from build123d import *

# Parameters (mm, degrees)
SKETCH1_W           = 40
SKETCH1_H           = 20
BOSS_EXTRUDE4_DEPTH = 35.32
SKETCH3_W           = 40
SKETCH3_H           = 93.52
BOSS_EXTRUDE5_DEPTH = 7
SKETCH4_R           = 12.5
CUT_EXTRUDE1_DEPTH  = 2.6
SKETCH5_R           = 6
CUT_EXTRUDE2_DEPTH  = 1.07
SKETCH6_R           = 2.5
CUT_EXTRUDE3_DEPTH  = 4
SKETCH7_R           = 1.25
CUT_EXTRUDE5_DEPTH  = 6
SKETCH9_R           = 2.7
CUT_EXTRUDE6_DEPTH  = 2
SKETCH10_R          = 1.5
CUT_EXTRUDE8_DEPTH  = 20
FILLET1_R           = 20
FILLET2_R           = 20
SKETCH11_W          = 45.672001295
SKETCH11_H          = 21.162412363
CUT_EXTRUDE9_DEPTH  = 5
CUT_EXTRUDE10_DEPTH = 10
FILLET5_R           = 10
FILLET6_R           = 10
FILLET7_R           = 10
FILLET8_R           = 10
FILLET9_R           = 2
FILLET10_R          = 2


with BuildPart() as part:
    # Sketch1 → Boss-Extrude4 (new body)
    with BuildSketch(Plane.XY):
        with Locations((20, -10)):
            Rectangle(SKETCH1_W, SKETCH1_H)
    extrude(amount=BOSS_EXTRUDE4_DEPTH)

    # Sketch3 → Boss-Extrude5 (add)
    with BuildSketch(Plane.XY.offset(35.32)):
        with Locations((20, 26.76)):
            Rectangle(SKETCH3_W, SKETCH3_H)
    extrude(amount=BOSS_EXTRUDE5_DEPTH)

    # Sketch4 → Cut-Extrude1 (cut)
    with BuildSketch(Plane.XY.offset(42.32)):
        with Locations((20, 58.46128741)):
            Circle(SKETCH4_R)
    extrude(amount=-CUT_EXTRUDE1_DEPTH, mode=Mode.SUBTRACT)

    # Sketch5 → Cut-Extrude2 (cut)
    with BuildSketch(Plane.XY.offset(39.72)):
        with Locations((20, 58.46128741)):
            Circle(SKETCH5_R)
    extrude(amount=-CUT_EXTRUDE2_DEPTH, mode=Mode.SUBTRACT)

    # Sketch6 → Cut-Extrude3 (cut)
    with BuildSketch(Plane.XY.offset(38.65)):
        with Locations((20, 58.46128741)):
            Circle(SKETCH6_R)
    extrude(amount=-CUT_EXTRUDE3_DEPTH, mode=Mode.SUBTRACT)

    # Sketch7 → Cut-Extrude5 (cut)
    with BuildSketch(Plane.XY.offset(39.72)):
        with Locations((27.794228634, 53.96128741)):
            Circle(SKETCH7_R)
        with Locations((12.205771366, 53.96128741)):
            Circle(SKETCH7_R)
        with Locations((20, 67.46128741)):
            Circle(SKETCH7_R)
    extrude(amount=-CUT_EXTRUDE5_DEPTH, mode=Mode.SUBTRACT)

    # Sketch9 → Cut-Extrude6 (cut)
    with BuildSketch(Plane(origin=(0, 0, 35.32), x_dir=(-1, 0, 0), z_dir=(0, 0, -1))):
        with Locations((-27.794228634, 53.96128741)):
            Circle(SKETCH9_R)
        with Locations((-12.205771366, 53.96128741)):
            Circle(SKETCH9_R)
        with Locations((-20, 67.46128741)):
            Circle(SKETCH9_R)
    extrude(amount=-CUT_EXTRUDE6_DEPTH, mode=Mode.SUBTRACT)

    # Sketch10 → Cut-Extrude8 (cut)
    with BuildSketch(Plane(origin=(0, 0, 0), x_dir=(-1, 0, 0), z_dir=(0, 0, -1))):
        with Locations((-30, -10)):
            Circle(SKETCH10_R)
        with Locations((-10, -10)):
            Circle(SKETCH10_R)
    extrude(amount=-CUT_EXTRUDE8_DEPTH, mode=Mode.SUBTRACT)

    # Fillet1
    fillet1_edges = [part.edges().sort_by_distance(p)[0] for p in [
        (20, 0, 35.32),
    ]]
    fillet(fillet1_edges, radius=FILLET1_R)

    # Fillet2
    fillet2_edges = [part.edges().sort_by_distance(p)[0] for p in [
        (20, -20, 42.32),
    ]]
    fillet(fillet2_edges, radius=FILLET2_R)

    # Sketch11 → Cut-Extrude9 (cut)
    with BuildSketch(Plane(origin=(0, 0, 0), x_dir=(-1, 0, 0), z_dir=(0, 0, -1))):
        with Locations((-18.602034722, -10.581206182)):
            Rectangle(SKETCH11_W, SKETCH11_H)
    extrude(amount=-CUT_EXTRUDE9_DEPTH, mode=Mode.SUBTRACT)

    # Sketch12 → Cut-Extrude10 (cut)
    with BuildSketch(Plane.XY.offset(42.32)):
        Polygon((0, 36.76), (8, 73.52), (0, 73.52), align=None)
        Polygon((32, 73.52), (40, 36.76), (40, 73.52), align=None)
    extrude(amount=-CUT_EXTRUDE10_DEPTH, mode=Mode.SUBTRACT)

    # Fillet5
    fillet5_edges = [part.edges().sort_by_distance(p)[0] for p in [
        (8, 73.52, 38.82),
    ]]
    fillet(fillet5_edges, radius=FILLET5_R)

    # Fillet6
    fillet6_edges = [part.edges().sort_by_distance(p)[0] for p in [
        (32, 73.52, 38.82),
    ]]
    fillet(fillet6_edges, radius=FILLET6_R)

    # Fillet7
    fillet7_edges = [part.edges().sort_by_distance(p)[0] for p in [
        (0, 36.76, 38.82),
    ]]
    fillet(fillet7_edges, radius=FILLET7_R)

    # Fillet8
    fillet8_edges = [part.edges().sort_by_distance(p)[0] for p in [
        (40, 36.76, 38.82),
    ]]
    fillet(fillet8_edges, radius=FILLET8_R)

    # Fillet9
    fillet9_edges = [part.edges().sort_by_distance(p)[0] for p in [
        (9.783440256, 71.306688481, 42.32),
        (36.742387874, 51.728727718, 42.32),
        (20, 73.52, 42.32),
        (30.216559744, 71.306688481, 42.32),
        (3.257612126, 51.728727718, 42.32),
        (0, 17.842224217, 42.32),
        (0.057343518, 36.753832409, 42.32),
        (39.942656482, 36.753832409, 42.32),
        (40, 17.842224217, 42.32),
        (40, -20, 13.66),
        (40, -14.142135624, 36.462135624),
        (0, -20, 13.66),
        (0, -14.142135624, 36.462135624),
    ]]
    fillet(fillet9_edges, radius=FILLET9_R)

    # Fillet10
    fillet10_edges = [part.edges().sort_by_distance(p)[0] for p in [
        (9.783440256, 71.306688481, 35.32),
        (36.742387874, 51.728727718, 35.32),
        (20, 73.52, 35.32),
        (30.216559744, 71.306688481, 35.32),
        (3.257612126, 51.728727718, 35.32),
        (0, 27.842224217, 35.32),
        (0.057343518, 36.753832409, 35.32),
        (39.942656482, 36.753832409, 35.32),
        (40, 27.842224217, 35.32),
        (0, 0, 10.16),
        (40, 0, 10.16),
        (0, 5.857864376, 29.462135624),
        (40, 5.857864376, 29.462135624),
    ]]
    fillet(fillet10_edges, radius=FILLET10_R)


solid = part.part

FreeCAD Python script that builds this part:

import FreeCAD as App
import Part
import Sketcher
from FreeCAD import Vector
Q = App.Units.Quantity


def edges_at(feature, points):
    """Names of the edges that pass closest to the given points."""
    edges = feature.Shape.Edges
    near = lambda p: min(range(len(edges)), key=lambda i: edges[i].distToShape(Part.Vertex(*p))[0])
    return sorted({f"Edge{near(p) + 1}" for p in points})

doc = App.newDocument("Part")
params = doc.addObject("Spreadsheet::Sheet", "Params")
for row, (alias, value) in enumerate([
    ("sketch1_width", "40 mm"),
    ("sketch1_height", "20 mm"),
    ("pad1_length", "35.32 mm"),
    ("sketch2_width", "40 mm"),
    ("sketch2_height", "93.52 mm"),
    ("pad2_length", "7 mm"),
    ("sketch3_diameter", "25 mm"),
    ("pocket1_length", "2.6 mm"),
    ("sketch4_diameter", "12 mm"),
    ("pocket2_length", "1.07 mm"),
    ("sketch5_diameter", "5 mm"),
    ("pocket3_length", "4 mm"),
    ("sketch6_diameter", "2.5 mm"),
    ("pocket4_length", "6 mm"),
    ("sketch7_diameter", "5.4 mm"),
    ("pocket5_length", "2 mm"),
    ("sketch8_diameter", "3 mm"),
    ("pocket6_length", "20 mm"),
    ("fillet_radius", "20 mm"),
    ("fillet2_radius", "20 mm"),
    ("pocket7_length", "5 mm"),
    ("sketch10_width", "8 mm"),
    ("sketch10_height", "36.76 mm"),
    ("pocket8_length", "10 mm"),
    ("fillet3_radius", "10 mm"),
    ("fillet4_radius", "10 mm"),
    ("fillet5_radius", "10 mm"),
    ("fillet6_radius", "10 mm"),
    ("fillet7_radius", "2 mm"),
    ("fillet8_radius", "2 mm"),
], start=1):
    params.set(f"A{row}", alias)
    params.set(f"B{row}", "=" + value)
    params.setAlias(f"B{row}", alias)

body = doc.addObject("PartDesign::Body", "Body")

# Sketch on XY plane
sketch1 = body.newObject("Sketcher::SketchObject", "Sketch")
sketch1.AttachmentSupport = (doc.getObject("XY_Plane"), [""])
sketch1.MapMode = "FlatFace"
sketch1.addGeometry([
    Part.LineSegment(Vector(0, 0, 0), Vector(0, -20, 0)),
    Part.LineSegment(Vector(0, -20, 0), Vector(40, -20, 0)),
    Part.LineSegment(Vector(40, -20, 0), Vector(40, 0, 0)),
    Part.LineSegment(Vector(40, 0, 0), Vector(0, 0, 0)),
], False)
sketch1.addConstraint([
    Sketcher.Constraint("Coincident", 0, 2, 1, 1),
    Sketcher.Constraint("Coincident", 1, 2, 2, 1),
    Sketcher.Constraint("Coincident", 2, 2, 3, 1),
    Sketcher.Constraint("Coincident", 3, 2, 0, 1),
    Sketcher.Constraint("Vertical", 0),
    Sketcher.Constraint("Horizontal", 1),
    Sketcher.Constraint("Vertical", 2),
    Sketcher.Constraint("Horizontal", 3),
    Sketcher.Constraint("Coincident", 3, 2, -1, 1),
    Sketcher.Constraint("DistanceX", 1, 1, 1, 2, Q("40 mm")),
    Sketcher.Constraint("DistanceY", 0, 2, 0, 1, Q("20 mm")),
])
sketch1.setExpression("Constraints[9]", "Params.sketch1_width")
sketch1.setExpression("Constraints[10]", "Params.sketch1_height")
pad1 = body.newObject("PartDesign::Pad", "Pad")
pad1.Profile = sketch1
pad1.setExpression("Length", "Params.pad1_length")

# Sketch on XY plane
sketch2 = body.newObject("Sketcher::SketchObject", "Sketch001")
sketch2.AttachmentSupport = (doc.getObject("XY_Plane"), [""])
sketch2.MapMode = "FlatFace"
sketch2.AttachmentOffset = App.Placement(Vector(0, 0, 35.32), App.Rotation())
sketch2.addGeometry([
    Part.LineSegment(Vector(0, 73.52, 0), Vector(0, -20, 0)),
    Part.LineSegment(Vector(0, -20, 0), Vector(40, -20, 0)),
    Part.LineSegment(Vector(40, -20, 0), Vector(40, 73.52, 0)),
    Part.LineSegment(Vector(40, 73.52, 0), Vector(0, 73.52, 0)),
], False)
sketch2.addConstraint([
    Sketcher.Constraint("Coincident", 0, 2, 1, 1),
    Sketcher.Constraint("Coincident", 1, 2, 2, 1),
    Sketcher.Constraint("Coincident", 2, 2, 3, 1),
    Sketcher.Constraint("Coincident", 3, 2, 0, 1),
    Sketcher.Constraint("Vertical", 0),
    Sketcher.Constraint("Horizontal", 1),
    Sketcher.Constraint("Vertical", 2),
    Sketcher.Constraint("Horizontal", 3),
    Sketcher.Constraint("PointOnObject", 0, 2, -2),
    Sketcher.Constraint("DistanceX", 1, 1, 1, 2, Q("40 mm")),
    Sketcher.Constraint("DistanceY", 0, 2, -1, 1, Q("20 mm")),
    Sketcher.Constraint("DistanceY", 0, 2, 0, 1, Q("93.52 mm")),
])
sketch2.setExpression("Constraints[9]", "Params.sketch2_width")
sketch2.setExpression("Constraints[11]", "Params.sketch2_height")
pad2 = body.newObject("PartDesign::Pad", "Pad001")
pad2.Profile = sketch2
pad2.setExpression("Length", "Params.pad2_length")

# Sketch on XY plane
sketch3 = body.newObject("Sketcher::SketchObject", "Sketch002")
sketch3.AttachmentSupport = (doc.getObject("XY_Plane"), [""])
sketch3.MapMode = "FlatFace"
sketch3.AttachmentOffset = App.Placement(Vector(0, 0, 42.32), App.Rotation())
sketch3.addGeometry(Part.Circle(Vector(20, 58.461287, 0), Vector(0, 0, 1), 12.5), False)
sketch3.addConstraint([
    Sketcher.Constraint("Diameter", 0, Q("25 mm")),
    Sketcher.Constraint("DistanceX", -1, 1, 0, 3, Q("20 mm")),
    Sketcher.Constraint("DistanceY", -1, 1, 0, 3, Q("58.461287 mm")),
])
sketch3.setExpression("Constraints[0]", "Params.sketch3_diameter")
pocket1 = body.newObject("PartDesign::Pocket", "Pocket")
pocket1.Profile = sketch3
pocket1.setExpression("Length", "Params.pocket1_length")

# Sketch on XY plane
sketch4 = body.newObject("Sketcher::SketchObject", "Sketch003")
sketch4.AttachmentSupport = (doc.getObject("XY_Plane"), [""])
sketch4.MapMode = "FlatFace"
sketch4.AttachmentOffset = App.Placement(Vector(0, 0, 39.72), App.Rotation())
sketch4.addGeometry(Part.Circle(Vector(20, 58.461287, 0), Vector(0, 0, 1), 6), False)
sketch4.addConstraint([
    Sketcher.Constraint("Diameter", 0, Q("12 mm")),
    Sketcher.Constraint("DistanceX", -1, 1, 0, 3, Q("20 mm")),
    Sketcher.Constraint("DistanceY", -1, 1, 0, 3, Q("58.461287 mm")),
])
sketch4.setExpression("Constraints[0]", "Params.sketch4_diameter")
pocket2 = body.newObject("PartDesign::Pocket", "Pocket001")
pocket2.Profile = sketch4
pocket2.setExpression("Length", "Params.pocket2_length")

# Sketch on XY plane
sketch5 = body.newObject("Sketcher::SketchObject", "Sketch004")
sketch5.AttachmentSupport = (doc.getObject("XY_Plane"), [""])
sketch5.MapMode = "FlatFace"
sketch5.AttachmentOffset = App.Placement(Vector(0, 0, 38.65), App.Rotation())
sketch5.addGeometry(Part.Circle(Vector(20, 58.461287, 0), Vector(0, 0, 1), 2.5), False)
sketch5.addConstraint([
    Sketcher.Constraint("Diameter", 0, Q("5 mm")),
    Sketcher.Constraint("DistanceX", -1, 1, 0, 3, Q("20 mm")),
    Sketcher.Constraint("DistanceY", -1, 1, 0, 3, Q("58.461287 mm")),
])
sketch5.setExpression("Constraints[0]", "Params.sketch5_diameter")
pocket3 = body.newObject("PartDesign::Pocket", "Pocket002")
pocket3.Profile = sketch5
pocket3.setExpression("Length", "Params.pocket3_length")

# Sketch on XY plane
sketch6 = body.newObject("Sketcher::SketchObject", "Sketch005")
sketch6.AttachmentSupport = (doc.getObject("XY_Plane"), [""])
sketch6.MapMode = "FlatFace"
sketch6.AttachmentOffset = App.Placement(Vector(0, 0, 39.72), App.Rotation())
sketch6.addGeometry([
    Part.Circle(Vector(27.794229, 53.961287, 0), Vector(0, 0, 1), 1.25),
    Part.Circle(Vector(12.205771, 53.961287, 0), Vector(0, 0, 1), 1.25),
    Part.Circle(Vector(20, 67.461287, 0), Vector(0, 0, 1), 1.25),
], False)
sketch6.addConstraint([
    Sketcher.Constraint("Equal", 0, 1),
    Sketcher.Constraint("Equal", 1, 2),
    Sketcher.Constraint("Horizontal", 0, 3, 1, 3),
    Sketcher.Constraint("Diameter", 0, Q("2.5 mm")),
    Sketcher.Constraint("DistanceX", -1, 1, 2, 3, Q("20 mm")),
    Sketcher.Constraint("DistanceY", 0, 3, 2, 3, Q("13.5 mm")),
    Sketcher.Constraint("DistanceX", -1, 1, 0, 3, Q("27.794229 mm")),
    Sketcher.Constraint("DistanceX", -1, 1, 1, 3, Q("12.205771 mm")),
    Sketcher.Constraint("DistanceY", -1, 1, 0, 3, Q("53.961287 mm")),
])
sketch6.setExpression("Constraints[3]", "Params.sketch6_diameter")
pocket4 = body.newObject("PartDesign::Pocket", "Pocket003")
pocket4.Profile = sketch6
pocket4.setExpression("Length", "Params.pocket4_length")

# Sketch on XY plane
sketch7 = body.newObject("Sketcher::SketchObject", "Sketch006")
sketch7.AttachmentSupport = (doc.getObject("XY_Plane"), [""])
sketch7.MapMode = "FlatFace"
sketch7.AttachmentOffset = App.Placement(Vector(0, 0, 35.32), App.Rotation())
sketch7.addGeometry([
    Part.Circle(Vector(27.794229, 53.961287, 0), Vector(0, 0, 1), 2.7),
    Part.Circle(Vector(12.205771, 53.961287, 0), Vector(0, 0, 1), 2.7),
    Part.Circle(Vector(20, 67.461287, 0), Vector(0, 0, 1), 2.7),
], False)
sketch7.addConstraint([
    Sketcher.Constraint("Equal", 0, 1),
    Sketcher.Constraint("Equal", 1, 2),
    Sketcher.Constraint("Horizontal", 0, 3, 1, 3),
    Sketcher.Constraint("Diameter", 0, Q("5.4 mm")),
    Sketcher.Constraint("DistanceX", -1, 1, 2, 3, Q("20 mm")),
    Sketcher.Constraint("DistanceY", 0, 3, 2, 3, Q("13.5 mm")),
    Sketcher.Constraint("DistanceX", -1, 1, 0, 3, Q("27.794229 mm")),
    Sketcher.Constraint("DistanceX", -1, 1, 1, 3, Q("12.205771 mm")),
    Sketcher.Constraint("DistanceY", -1, 1, 0, 3, Q("53.961287 mm")),
])
sketch7.setExpression("Constraints[3]", "Params.sketch7_diameter")
pocket5 = body.newObject("PartDesign::Pocket", "Pocket004")
pocket5.Profile = sketch7
pocket5.setExpression("Length", "Params.pocket5_length")
pocket5.Reversed = True

# Sketch on XY plane
sketch8 = body.newObject("Sketcher::SketchObject", "Sketch007")
sketch8.AttachmentSupport = (doc.getObject("XY_Plane"), [""])
sketch8.MapMode = "FlatFace"
sketch8.addGeometry([
    Part.Circle(Vector(30, -10, 0), Vector(0, 0, 1), 1.5),
    Part.Circle(Vector(10, -10, 0), Vector(0, 0, 1), 1.5),
], False)
sketch8.addConstraint([
    Sketcher.Constraint("Equal", 0, 1),
    Sketcher.Constraint("Horizontal", 0, 3, 1, 3),
    Sketcher.Constraint("Diameter", 0, Q("3 mm")),
    Sketcher.Constraint("DistanceX", -1, 1, 0, 3, Q("30 mm")),
    Sketcher.Constraint("DistanceY", 0, 3, -1, 1, Q("10 mm")),
    Sketcher.Constraint("DistanceX", -1, 1, 1, 3, Q("10 mm")),
])
sketch8.setExpression("Constraints[2]", "Params.sketch8_diameter")
pocket6 = body.newObject("PartDesign::Pocket", "Pocket005")
pocket6.Profile = sketch8
pocket6.setExpression("Length", "Params.pocket6_length")
pocket6.Reversed = True
doc.recompute()

fillet = body.newObject("PartDesign::Fillet", "Fillet")
fillet.Base = (pocket6, edges_at(pocket6, [(20, 0, 35.32)]))
fillet.setExpression("Radius", "Params.fillet_radius")
doc.recompute()

fillet2 = body.newObject("PartDesign::Fillet", "Fillet001")
fillet2.Base = (fillet, edges_at(fillet, [(20, -20, 42.32)]))
fillet2.setExpression("Radius", "Params.fillet2_radius")

# Sketch on XY plane
sketch9 = body.newObject("Sketcher::SketchObject", "Sketch008")
sketch9.AttachmentSupport = (doc.getObject("XY_Plane"), [""])
sketch9.MapMode = "FlatFace"
sketch9.addGeometry([
    Part.LineSegment(Vector(41.438035, 0, 0), Vector(41.438035, -21.162412, 0)),
    Part.LineSegment(Vector(41.438035, -21.162412, 0), Vector(-4.233966, -21.162412, 0)),
    Part.LineSegment(Vector(-4.233966, -21.162412, 0), Vector(-4.233966, 0, 0)),
    Part.LineSegment(Vector(-4.233966, 0, 0), Vector(41.438035, 0, 0)),
], False)
sketch9.addConstraint([
    Sketcher.Constraint("Coincident", 0, 2, 1, 1),
    Sketcher.Constraint("Coincident", 1, 2, 2, 1),
    Sketcher.Constraint("Coincident", 2, 2, 3, 1),
    Sketcher.Constraint("Coincident", 3, 2, 0, 1),
    Sketcher.Constraint("Vertical", 0),
    Sketcher.Constraint("Horizontal", 1),
    Sketcher.Constraint("Vertical", 2),
    Sketcher.Constraint("Horizontal", 3),
    Sketcher.Constraint("PointOnObject", 2, 2, -1),
    Sketcher.Constraint("DistanceX", 1, 2, 1, 1, Q("45.672001 mm")),
    Sketcher.Constraint("DistanceY", 0, 2, 0, 1, Q("21.162412 mm")),
    Sketcher.Constraint("DistanceX", -1, 1, 0, 2, Q("41.438035 mm")),
])
pocket7 = body.newObject("PartDesign::Pocket", "Pocket006")
pocket7.Profile = sketch9
pocket7.setExpression("Length", "Params.pocket7_length")
pocket7.Reversed = True

# Sketch on XY plane
sketch10 = body.newObject("Sketcher::SketchObject", "Sketch009")
sketch10.AttachmentSupport = (doc.getObject("XY_Plane"), [""])
sketch10.MapMode = "FlatFace"
sketch10.AttachmentOffset = App.Placement(Vector(0, 0, 42.32), App.Rotation())
sketch10.addGeometry([
    Part.LineSegment(Vector(0, 36.76, 0), Vector(8, 73.52, 0)),  # 0
    Part.LineSegment(Vector(8, 73.52, 0), Vector(0, 73.52, 0)),  # 1
    Part.LineSegment(Vector(0, 73.52, 0), Vector(0, 36.76, 0)),  # 2
    Part.LineSegment(Vector(32, 73.52, 0), Vector(40, 36.76, 0)),  # 3
    Part.LineSegment(Vector(40, 36.76, 0), Vector(40, 73.52, 0)),  # 4
    Part.LineSegment(Vector(40, 73.52, 0), Vector(32, 73.52, 0)),  # 5
], False)
sketch10.addConstraint([
    Sketcher.Constraint("Coincident", 0, 2, 1, 1),
    Sketcher.Constraint("Coincident", 1, 2, 2, 1),
    Sketcher.Constraint("Coincident", 2, 2, 0, 1),
    Sketcher.Constraint("Coincident", 3, 2, 4, 1),
    Sketcher.Constraint("Coincident", 4, 2, 5, 1),
    Sketcher.Constraint("Coincident", 5, 2, 3, 1),
    Sketcher.Constraint("Horizontal", 1),
    Sketcher.Constraint("Vertical", 2),
    Sketcher.Constraint("Vertical", 4),
    Sketcher.Constraint("Horizontal", 5),
    Sketcher.Constraint("PointOnObject", 1, 2, -2),
    Sketcher.Constraint("Horizontal", 2, 2, 3, 2),
    Sketcher.Constraint("Horizontal", 1, 2, 4, 2),
    Sketcher.Constraint("Equal", 1, 5),
    Sketcher.Constraint("DistanceX", 1, 2, 1, 1, Q("8 mm")),
    Sketcher.Constraint("DistanceX", -1, 1, 3, 2, Q("40 mm")),
    Sketcher.Constraint("DistanceY", 2, 2, 2, 1, Q("36.76 mm")),
    Sketcher.Constraint("DistanceY", -1, 1, 0, 2, Q("73.52 mm")),
])
sketch10.setExpression("Constraints[14]", "Params.sketch10_width")
sketch10.setExpression("Constraints[16]", "Params.sketch10_height")
pocket8 = body.newObject("PartDesign::Pocket", "Pocket007")
pocket8.Profile = sketch10
pocket8.setExpression("Length", "Params.pocket8_length")
doc.recompute()

fillet3 = body.newObject("PartDesign::Fillet", "Fillet002")
fillet3.Base = (pocket8, edges_at(pocket8, [(8, 73.52, 38.82)]))
fillet3.setExpression("Radius", "Params.fillet3_radius")
doc.recompute()

fillet4 = body.newObject("PartDesign::Fillet", "Fillet003")
fillet4.Base = (fillet3, edges_at(fillet3, [(32, 73.52, 38.82)]))
fillet4.setExpression("Radius", "Params.fillet4_radius")
doc.recompute()

fillet5 = body.newObject("PartDesign::Fillet", "Fillet004")
fillet5.Base = (fillet4, edges_at(fillet4, [(0, 36.76, 38.82)]))
fillet5.setExpression("Radius", "Params.fillet5_radius")
doc.recompute()

fillet6 = body.newObject("PartDesign::Fillet", "Fillet005")
fillet6.Base = (fillet5, edges_at(fillet5, [(40, 36.76, 38.82)]))
fillet6.setExpression("Radius", "Params.fillet6_radius")
doc.recompute()

fillet7 = body.newObject("PartDesign::Fillet", "Fillet006")
fillet7.Base = (fillet6, edges_at(fillet6, [
    (9.783, 71.307, 42.32),
    (36.742, 51.729, 42.32),
    (20, 73.52, 42.32),
    (30.217, 71.307, 42.32),
    (3.258, 51.729, 42.32),
    (0, 17.842, 42.32),
    (0.057, 36.754, 42.32),
    (39.943, 36.754, 42.32),
    (40, 17.842, 42.32),
    (40, -20, 13.66),
    (40, -14.142, 36.462),
    (0, -20, 13.66),
    (0, -14.142, 36.462),
]))
fillet7.setExpression("Radius", "Params.fillet7_radius")
doc.recompute()

fillet8 = body.newObject("PartDesign::Fillet", "Fillet007")
fillet8.Base = (fillet7, edges_at(fillet7, [
    (9.783, 71.307, 35.32),
    (36.742, 51.729, 35.32),
    (20, 73.52, 35.32),
    (30.217, 71.307, 35.32),
    (3.258, 51.729, 35.32),
    (0, 27.842, 35.32),
    (0.057, 36.754, 35.32),
    (39.943, 36.754, 35.32),
    (40, 27.842, 35.32),
    (0, 0, 10.16),
    (40, 0, 10.16),
    (0, 5.858, 29.462),
    (40, 5.858, 29.462),
]))
fillet8.setExpression("Radius", "Params.fillet8_radius")

doc.recompute()
